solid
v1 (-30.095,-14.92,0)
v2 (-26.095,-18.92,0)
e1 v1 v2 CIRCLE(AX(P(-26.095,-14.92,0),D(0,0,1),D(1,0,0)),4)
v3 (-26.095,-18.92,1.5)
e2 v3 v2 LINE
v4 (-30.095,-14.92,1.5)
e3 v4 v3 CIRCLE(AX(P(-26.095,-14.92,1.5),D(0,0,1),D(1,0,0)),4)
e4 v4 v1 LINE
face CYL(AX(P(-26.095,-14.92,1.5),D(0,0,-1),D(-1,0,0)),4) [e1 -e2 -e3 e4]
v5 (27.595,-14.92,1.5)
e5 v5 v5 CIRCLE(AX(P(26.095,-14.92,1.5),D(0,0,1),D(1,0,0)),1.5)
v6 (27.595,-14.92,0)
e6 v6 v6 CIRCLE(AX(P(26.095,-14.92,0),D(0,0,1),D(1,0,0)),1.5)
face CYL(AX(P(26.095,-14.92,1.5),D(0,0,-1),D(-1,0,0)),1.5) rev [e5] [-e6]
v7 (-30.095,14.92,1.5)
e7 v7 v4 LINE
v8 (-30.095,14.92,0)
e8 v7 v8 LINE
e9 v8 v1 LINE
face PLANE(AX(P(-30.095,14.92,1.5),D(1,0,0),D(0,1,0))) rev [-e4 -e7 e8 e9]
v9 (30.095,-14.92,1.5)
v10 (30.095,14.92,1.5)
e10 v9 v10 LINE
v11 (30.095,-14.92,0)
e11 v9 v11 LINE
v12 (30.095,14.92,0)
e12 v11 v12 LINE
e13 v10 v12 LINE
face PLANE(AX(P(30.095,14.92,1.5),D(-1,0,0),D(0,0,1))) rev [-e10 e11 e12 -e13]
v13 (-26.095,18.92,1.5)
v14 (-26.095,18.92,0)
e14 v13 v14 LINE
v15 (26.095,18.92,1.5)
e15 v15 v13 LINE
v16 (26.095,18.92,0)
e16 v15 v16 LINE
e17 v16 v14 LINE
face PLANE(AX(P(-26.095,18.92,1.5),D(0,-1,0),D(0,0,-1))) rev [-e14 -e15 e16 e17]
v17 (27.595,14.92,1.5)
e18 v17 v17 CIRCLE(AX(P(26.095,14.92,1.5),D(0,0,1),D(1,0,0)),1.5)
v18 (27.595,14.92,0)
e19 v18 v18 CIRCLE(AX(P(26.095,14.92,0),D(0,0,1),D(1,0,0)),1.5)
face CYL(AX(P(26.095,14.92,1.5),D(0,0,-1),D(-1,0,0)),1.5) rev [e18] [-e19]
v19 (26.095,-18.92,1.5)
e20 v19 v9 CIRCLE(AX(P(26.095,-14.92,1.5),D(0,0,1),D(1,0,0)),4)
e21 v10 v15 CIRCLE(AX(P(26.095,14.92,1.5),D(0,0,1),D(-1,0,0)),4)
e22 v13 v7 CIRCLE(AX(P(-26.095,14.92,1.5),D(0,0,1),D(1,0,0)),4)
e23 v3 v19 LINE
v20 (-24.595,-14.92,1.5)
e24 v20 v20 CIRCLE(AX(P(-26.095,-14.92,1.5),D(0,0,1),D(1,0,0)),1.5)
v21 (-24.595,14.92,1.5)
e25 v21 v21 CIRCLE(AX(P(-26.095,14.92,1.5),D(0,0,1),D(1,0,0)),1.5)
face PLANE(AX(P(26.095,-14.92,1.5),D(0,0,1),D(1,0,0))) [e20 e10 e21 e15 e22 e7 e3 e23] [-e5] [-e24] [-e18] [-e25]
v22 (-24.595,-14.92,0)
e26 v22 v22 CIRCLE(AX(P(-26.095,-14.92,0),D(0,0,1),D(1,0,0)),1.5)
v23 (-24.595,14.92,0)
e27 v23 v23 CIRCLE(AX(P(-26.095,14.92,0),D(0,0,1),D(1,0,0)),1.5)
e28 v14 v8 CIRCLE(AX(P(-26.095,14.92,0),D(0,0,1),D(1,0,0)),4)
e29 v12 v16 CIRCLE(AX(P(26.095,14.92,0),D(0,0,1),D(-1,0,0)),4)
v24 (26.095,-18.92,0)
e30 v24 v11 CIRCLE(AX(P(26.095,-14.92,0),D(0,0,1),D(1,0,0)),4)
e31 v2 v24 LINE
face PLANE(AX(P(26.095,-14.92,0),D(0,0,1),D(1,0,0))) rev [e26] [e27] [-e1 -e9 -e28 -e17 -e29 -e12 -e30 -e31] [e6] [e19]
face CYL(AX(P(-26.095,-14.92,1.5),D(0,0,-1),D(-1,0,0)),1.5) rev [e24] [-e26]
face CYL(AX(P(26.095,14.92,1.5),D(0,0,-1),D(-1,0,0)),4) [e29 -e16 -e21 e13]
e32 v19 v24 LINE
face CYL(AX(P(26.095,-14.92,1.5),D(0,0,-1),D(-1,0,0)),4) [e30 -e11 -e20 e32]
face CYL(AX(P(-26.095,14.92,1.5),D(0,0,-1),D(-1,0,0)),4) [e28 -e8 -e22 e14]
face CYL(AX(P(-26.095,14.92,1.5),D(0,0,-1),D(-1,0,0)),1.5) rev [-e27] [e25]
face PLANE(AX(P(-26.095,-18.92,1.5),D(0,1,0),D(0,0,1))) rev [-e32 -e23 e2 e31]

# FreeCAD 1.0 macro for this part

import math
import FreeCAD as App
import Part
import Sketcher

V = App.Vector
Q = App.Units.Quantity

doc = App.newDocument("Part")
params = doc.addObject("Spreadsheet::Sheet", "Params")
for row, (alias, value) in enumerate([
    ("sketch1_diameter", "3 mm"),
    ("sketch1_radius", "4 mm"),
    ("sketch1_width", "52.19 mm"),
    ("sketch1_height", "29.84 mm"),
    ("pad1_length", "1.5 mm"),
], start=1):
    params.set(f"A{row}", alias)
    params.set(f"B{row}", "=" + value)
    params.setAlias(f"B{row}", alias)

body = doc.addObject("PartDesign::Body", "Body")

# Sketch on XY plane
sketch1 = body.newObject("Sketcher::SketchObject", "Sketch")
sketch1.AttachmentSupport = (doc.getObject("XY_Plane"), [""])
sketch1.MapMode = "FlatFace"
sketch1.addGeometry([
    Part.LineSegment(V(26.095, 18.92, 0), V(-26.095, 18.92, 0)),  # 0
    Part.ArcOfCircle(Part.Circle(V(-26.095, 14.92, 0), V(0, 0, 1), 4), math.radians(90), math.radians(180)),  # 1
    Part.LineSegment(V(-30.095, 14.92, 0), V(-30.095, -14.92, 0)),  # 2
    Part.ArcOfCircle(Part.Circle(V(-26.095, -14.92, 0), V(0, 0, 1), 4), math.radians(180), math.radians(270)),  # 3
    Part.LineSegment(V(-26.095, -18.92, 0), V(26.095, -18.92, 0)),  # 4
    Part.ArcOfCircle(Part.Circle(V(26.095, -14.92, 0), V(0, 0, 1), 4), math.radians(-90), math.radians(0)),  # 5
    Part.LineSegment(V(30.095, -14.92, 0), V(30.095, 14.92, 0)),  # 6
    Part.ArcOfCircle(Part.Circle(V(26.095, 14.92, 0), V(0, 0, 1), 4), math.radians(0), math.radians(90)),  # 7
    Part.Circle(V(26.095, -14.92, 0), V(0, 0, 1), 1.5),  # 8
    Part.Circle(V(-26.095, -14.92, 0), V(0, 0, 1), 1.5),  # 9
    Part.Circle(V(26.095, 14.92, 0), V(0, 0, 1), 1.5),  # 10
    Part.Circle(V(-26.095, 14.92, 0), V(0, 0, 1), 1.5),  # 11
], False)
sketch1.addConstraint([
    Sketcher.Constraint("Tangent", 0, 2, 1, 1),
    Sketcher.Constraint("Tangent", 1, 2, 2, 1),
    Sketcher.Constraint("Tangent", 2, 2, 3, 1),
    Sketcher.Constraint("Tangent", 3, 2, 4, 1),
    Sketcher.Constraint("Tangent", 4, 2, 5, 1),
    Sketcher.Constraint("Tangent", 5, 2, 6, 1),
    Sketcher.Constraint("Tangent", 6, 2, 7, 1),
    Sketcher.Constraint("Tangent", 7, 2, 0, 1),
    Sketcher.Constraint("Horizontal", 0),
    Sketcher.Constraint("Vertical", 2),
    Sketcher.Constraint("Horizontal", 4),
    Sketcher.Constraint("Vertical", 6),
    Sketcher.Constraint("Coincident", 8, 3, 5, 3),
    Sketcher.Constraint("Coincident", 9, 3, 3, 3),
    Sketcher.Constraint("Coincident", 10, 3, 7, 3),
    Sketcher.Constraint("Coincident", 11, 3, 1, 3),
    Sketcher.Constraint("Equal", 1, 3),
    Sketcher.Constraint("Equal", 3, 5),
    Sketcher.Constraint("Equal", 5, 7),
    Sketcher.Constraint("Equal", 8, 9),
    Sketcher.Constraint("Equal", 9, 10),
    Sketcher.Constraint("Equal", 10, 11),
    Sketcher.Constraint("Symmetric", 1, 3, 5, 3, -1, 1),
    Sketcher.Constraint("Diameter", 8, Q("3 mm")),
    Sketcher.Constraint("Radius", 1, Q("4 mm")),
    Sketcher.Constraint("DistanceX", 0, 2, 0, 1, Q("52.19 mm")),
    Sketcher.Constraint("DistanceY", 2, 2, 2, 1, Q("29.84 mm")),
])
sketch1.setExpression("Constraints[23]", "Params.sketch1_diameter")
sketch1.setExpression("Constraints[24]", "Params.sketch1_radius")
sketch1.setExpression("Constraints[25]", "Params.sketch1_width")
sketch1.setExpression("Constraints[26]", "Params.sketch1_height")
pad1 = body.newObject("PartDesign::Pad", "Pad")
pad1.Profile = sketch1
pad1.setExpression("Length", "Params.pad1_length")

doc.recompute()
